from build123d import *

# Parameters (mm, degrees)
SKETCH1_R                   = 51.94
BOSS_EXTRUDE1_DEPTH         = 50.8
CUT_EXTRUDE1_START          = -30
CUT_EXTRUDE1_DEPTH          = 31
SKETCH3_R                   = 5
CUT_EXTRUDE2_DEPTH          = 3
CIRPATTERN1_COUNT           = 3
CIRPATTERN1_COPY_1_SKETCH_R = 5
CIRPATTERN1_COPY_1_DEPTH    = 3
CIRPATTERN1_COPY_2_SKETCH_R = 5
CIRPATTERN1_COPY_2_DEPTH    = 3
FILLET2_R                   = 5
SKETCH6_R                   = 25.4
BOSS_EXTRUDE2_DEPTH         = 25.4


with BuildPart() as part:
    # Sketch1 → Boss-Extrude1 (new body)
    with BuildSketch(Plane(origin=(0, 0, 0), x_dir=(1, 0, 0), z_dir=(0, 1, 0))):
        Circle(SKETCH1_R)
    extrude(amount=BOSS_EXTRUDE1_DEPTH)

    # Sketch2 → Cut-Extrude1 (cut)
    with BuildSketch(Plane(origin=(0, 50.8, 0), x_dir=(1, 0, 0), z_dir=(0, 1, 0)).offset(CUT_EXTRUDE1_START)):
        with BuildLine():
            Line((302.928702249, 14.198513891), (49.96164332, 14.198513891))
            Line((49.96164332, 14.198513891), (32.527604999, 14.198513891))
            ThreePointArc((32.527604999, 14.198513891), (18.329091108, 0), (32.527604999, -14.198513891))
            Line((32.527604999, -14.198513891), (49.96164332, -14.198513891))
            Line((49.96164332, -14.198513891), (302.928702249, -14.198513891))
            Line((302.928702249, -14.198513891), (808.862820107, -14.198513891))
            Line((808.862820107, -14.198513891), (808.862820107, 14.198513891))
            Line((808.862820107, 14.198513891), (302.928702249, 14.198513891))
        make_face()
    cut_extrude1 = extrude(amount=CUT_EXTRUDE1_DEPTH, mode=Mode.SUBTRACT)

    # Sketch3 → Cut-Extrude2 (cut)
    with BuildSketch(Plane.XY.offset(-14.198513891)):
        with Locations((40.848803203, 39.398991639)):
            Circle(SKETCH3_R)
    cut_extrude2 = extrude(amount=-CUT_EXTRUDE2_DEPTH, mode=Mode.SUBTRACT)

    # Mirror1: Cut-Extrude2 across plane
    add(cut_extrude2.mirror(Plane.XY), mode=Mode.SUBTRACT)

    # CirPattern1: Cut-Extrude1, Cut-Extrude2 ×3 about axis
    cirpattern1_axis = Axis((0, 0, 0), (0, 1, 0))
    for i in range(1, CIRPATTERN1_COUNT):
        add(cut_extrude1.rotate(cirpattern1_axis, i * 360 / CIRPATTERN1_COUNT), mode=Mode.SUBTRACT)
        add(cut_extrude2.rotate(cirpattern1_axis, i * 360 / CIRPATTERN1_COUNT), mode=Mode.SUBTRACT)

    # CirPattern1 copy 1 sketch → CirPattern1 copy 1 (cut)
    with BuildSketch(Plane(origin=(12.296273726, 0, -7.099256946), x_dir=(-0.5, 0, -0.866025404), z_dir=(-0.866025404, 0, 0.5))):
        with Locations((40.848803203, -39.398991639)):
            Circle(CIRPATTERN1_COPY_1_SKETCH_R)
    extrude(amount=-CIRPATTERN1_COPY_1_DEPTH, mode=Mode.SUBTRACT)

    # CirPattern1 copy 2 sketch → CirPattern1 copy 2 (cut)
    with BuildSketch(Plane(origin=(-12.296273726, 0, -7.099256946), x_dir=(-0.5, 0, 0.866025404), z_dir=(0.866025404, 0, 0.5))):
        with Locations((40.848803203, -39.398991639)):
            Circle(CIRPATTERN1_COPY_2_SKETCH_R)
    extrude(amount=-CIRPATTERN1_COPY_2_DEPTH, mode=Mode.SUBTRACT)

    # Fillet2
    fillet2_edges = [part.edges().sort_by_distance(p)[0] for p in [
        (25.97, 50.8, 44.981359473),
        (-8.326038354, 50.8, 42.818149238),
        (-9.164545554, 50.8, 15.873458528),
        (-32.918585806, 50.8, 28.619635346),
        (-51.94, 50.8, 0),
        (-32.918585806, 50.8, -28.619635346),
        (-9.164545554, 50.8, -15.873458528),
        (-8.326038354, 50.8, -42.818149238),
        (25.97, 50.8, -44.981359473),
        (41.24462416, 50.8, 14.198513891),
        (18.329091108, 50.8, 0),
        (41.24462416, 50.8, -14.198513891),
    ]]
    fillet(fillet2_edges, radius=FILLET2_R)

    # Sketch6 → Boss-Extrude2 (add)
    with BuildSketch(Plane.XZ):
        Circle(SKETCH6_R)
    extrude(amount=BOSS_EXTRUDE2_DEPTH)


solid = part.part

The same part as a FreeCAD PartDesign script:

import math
import FreeCAD as App
import Part
import Sketcher
from FreeCAD import Vector


def edges_at(feature, points):
    """Names of the edges that pass closest to the given points."""
    edges = feature.Shape.Edges
    near = lambda p: min(range(len(edges)), key=lambda i: edges[i].distToShape(Part.Vertex(*p))[0])
    return sorted({f"Edge{near(p) + 1}" for p in points})

doc = App.newDocument("Part")
body = doc.addObject("PartDesign::Body", "Body")

sketch1 = doc.addObject("Sketcher::SketchObject", "Sketch")
body.addObject(sketch1)
sketch1.AttachmentSupport = (doc.XZ_Plane, [""])
sketch1.MapMode = "FlatFace"
sketch1.addGeometry(Part.Circle(Vector(0, 0, 0), Vector(0, 0, 1), 51.94), False)
sketch1.addConstraint([
    Sketcher.Constraint("Coincident", 0, 3, -1, 1),
    Sketcher.Constraint("Diameter", 0, 103.88),
])
pad1 = doc.addObject("PartDesign::Pad", "Pad")
body.addObject(pad1)
pad1.Profile = sketch1
pad1.Length = 50.8
pad1.Reversed = True

sketch2 = doc.addObject("Sketcher::SketchObject", "Sketch001")
body.addObject(sketch2)
sketch2.AttachmentSupport = (doc.XZ_Plane, [""])
sketch2.MapMode = "FlatFace"
sketch2.AttachmentOffset = App.Placement(Vector(0, 0, -20.8), App.Rotation())
sketch2.addGeometry([
    Part.ArcOfCircle(Part.Circle(Vector(32.527605, 0, 0), Vector(0, 0, 1), 14.198514), math.radians(90), math.radians(270)),
    Part.LineSegment(Vector(32.527605, 14.198514, 0), Vector(808.86282, 14.198514, 0)),
    Part.LineSegment(Vector(808.86282, 14.198514, 0), Vector(808.86282, -14.198514, 0)),
    Part.LineSegment(Vector(808.86282, -14.198514, 0), Vector(32.527605, -14.198514, 0)),
], False)
sketch2.addConstraint([
    Sketcher.Constraint("Tangent", 0, 1, 1, 1),
    Sketcher.Constraint("Coincident", 1, 2, 2, 1),
    Sketcher.Constraint("Coincident", 2, 2, 3, 1),
    Sketcher.Constraint("Tangent", 3, 2, 0, 2),
    Sketcher.Constraint("Horizontal", 1),
    Sketcher.Constraint("Vertical", 2),
    Sketcher.Constraint("Horizontal", 3),
    Sketcher.Constraint("PointOnObject", 0, 3, -1),
    Sketcher.Constraint("Radius", 0, 14.198514),
    Sketcher.Constraint("DistanceX", 1, 1, 1, 2, 776.335215),
    Sketcher.Constraint("DistanceX", -1, 1, 1, 2, 808.86282),
])
pocket1 = doc.addObject("PartDesign::Pocket", "Pocket")
body.addObject(pocket1)
pocket1.Profile = sketch2
pocket1.Length = 31

sketch3 = doc.addObject("Sketcher::SketchObject", "Sketch002")
body.addObject(sketch3)
sketch3.AttachmentSupport = (doc.XY_Plane, [""])
sketch3.MapMode = "FlatFace"
sketch3.AttachmentOffset = App.Placement(Vector(0, 0, -14.198514), App.Rotation())
sketch3.addGeometry(Part.Circle(Vector(40.848803, 39.398992, 0), Vector(0, 0, 1), 5), False)
sketch3.addConstraint([
    Sketcher.Constraint("Diameter", 0, 10.0),
    Sketcher.Constraint("DistanceY", -1, 1, 0, 3, 39.398992),
    Sketcher.Constraint("DistanceX", -1, 1, 0, 3, 40.848803),
])
pocket2 = doc.addObject("PartDesign::Pocket", "Pocket001")
body.addObject(pocket2)
pocket2.Profile = sketch3
pocket2.Length = 3
doc.recompute()

mirrored = doc.addObject("PartDesign::Mirrored", "Mirrored")
body.addObject(mirrored)
mirrored.Originals = [pocket2]
mirrored.MirrorPlane = (doc.XY_Plane, [""])
body.Tip = mirrored
doc.recompute()

polarpattern = doc.addObject("PartDesign::PolarPattern", "PolarPattern")
body.addObject(polarpattern)
polarpattern.Originals = [pocket1, pocket2]
polarpattern.Axis = (doc.Y_Axis, [""])
polarpattern.Angle = 360
polarpattern.Occurrences = 3
body.Tip = polarpattern

sketch4 = doc.addObject("Sketcher::SketchObject", "Sketch003")
body.addObject(sketch4)
sketch4.Placement = App.Placement(Vector(12.296274, 0, -7.099257), App.Rotation(Vector(-0.5, 0, -0.866025404), Vector(0, -1, 0), Vector(-0.866025404, 0, 0.5), "ZXY"))
sketch4.addGeometry(Part.Circle(Vector(40.848803, -39.398992, 0), Vector(0, 0, 1), 5), False)
sketch4.addConstraint([
    Sketcher.Constraint("Diameter", 0, 10.0),
    Sketcher.Constraint("DistanceY", 0, 3, -1, 1, 39.398992),
    Sketcher.Constraint("DistanceX", -1, 1, 0, 3, 40.848803),
])
pocket3 = doc.addObject("PartDesign::Pocket", "Pocket002")
body.addObject(pocket3)
pocket3.Profile = sketch4
pocket3.Length = 3

sketch5 = doc.addObject("Sketcher::SketchObject", "Sketch004")
body.addObject(sketch5)
sketch5.Placement = App.Placement(Vector(-12.296274, 0, -7.099257), App.Rotation(Vector(-0.5, 0, 0.866025404), Vector(0, -1, 0), Vector(0.866025404, 0, 0.5), "ZXY"))
sketch5.addGeometry(Part.Circle(Vector(40.848803, -39.398992, 0), Vector(0, 0, 1), 5), False)
sketch5.addConstraint([
    Sketcher.Constraint("Diameter", 0, 10.0),
    Sketcher.Constraint("DistanceY", 0, 3, -1, 1, 39.398992),
    Sketcher.Constraint("DistanceX", -1, 1, 0, 3, 40.848803),
])
pocket4 = doc.addObject("PartDesign::Pocket", "Pocket003")
body.addObject(pocket4)
pocket4.Profile = sketch5
pocket4.Length = 3
doc.recompute()

fillet = doc.addObject("PartDesign::Fillet", "Fillet")
body.addObject(fillet)
fillet.Base = (pocket4, edges_at(pocket4, [
    (25.97, 50.8, 44.981),
    (-8.326, 50.8, 42.818),
    (-9.165, 50.8, 15.873),
    (-32.919, 50.8, 28.62),
    (-51.94, 50.8, 0),
    (-32.919, 50.8, -28.62),
    (-9.165, 50.8, -15.873),
    (-8.326, 50.8, -42.818),
    (25.97, 50.8, -44.981),
    (41.245, 50.8, 14.199),
    (18.329, 50.8, 0),
    (41.245, 50.8, -14.199),
]))
fillet.Radius = 5

sketch6 = doc.addObject("Sketcher::SketchObject", "Sketch005")
body.addObject(sketch6)
sketch6.AttachmentSupport = (doc.XZ_Plane, [""])
sketch6.MapMode = "FlatFace"
sketch6.addGeometry(Part.Circle(Vector(0, 0, 0), Vector(0, 0, 1), 25.4), False)
sketch6.addConstraint([
    Sketcher.Constraint("Coincident", 0, 3, -1, 1),
    Sketcher.Constraint("Diameter", 0, 50.8),
])
pad2 = doc.addObject("PartDesign::Pad", "Pad001")
body.addObject(pad2)
pad2.Profile = sketch6
pad2.Length = 25.4

doc.recompute()
